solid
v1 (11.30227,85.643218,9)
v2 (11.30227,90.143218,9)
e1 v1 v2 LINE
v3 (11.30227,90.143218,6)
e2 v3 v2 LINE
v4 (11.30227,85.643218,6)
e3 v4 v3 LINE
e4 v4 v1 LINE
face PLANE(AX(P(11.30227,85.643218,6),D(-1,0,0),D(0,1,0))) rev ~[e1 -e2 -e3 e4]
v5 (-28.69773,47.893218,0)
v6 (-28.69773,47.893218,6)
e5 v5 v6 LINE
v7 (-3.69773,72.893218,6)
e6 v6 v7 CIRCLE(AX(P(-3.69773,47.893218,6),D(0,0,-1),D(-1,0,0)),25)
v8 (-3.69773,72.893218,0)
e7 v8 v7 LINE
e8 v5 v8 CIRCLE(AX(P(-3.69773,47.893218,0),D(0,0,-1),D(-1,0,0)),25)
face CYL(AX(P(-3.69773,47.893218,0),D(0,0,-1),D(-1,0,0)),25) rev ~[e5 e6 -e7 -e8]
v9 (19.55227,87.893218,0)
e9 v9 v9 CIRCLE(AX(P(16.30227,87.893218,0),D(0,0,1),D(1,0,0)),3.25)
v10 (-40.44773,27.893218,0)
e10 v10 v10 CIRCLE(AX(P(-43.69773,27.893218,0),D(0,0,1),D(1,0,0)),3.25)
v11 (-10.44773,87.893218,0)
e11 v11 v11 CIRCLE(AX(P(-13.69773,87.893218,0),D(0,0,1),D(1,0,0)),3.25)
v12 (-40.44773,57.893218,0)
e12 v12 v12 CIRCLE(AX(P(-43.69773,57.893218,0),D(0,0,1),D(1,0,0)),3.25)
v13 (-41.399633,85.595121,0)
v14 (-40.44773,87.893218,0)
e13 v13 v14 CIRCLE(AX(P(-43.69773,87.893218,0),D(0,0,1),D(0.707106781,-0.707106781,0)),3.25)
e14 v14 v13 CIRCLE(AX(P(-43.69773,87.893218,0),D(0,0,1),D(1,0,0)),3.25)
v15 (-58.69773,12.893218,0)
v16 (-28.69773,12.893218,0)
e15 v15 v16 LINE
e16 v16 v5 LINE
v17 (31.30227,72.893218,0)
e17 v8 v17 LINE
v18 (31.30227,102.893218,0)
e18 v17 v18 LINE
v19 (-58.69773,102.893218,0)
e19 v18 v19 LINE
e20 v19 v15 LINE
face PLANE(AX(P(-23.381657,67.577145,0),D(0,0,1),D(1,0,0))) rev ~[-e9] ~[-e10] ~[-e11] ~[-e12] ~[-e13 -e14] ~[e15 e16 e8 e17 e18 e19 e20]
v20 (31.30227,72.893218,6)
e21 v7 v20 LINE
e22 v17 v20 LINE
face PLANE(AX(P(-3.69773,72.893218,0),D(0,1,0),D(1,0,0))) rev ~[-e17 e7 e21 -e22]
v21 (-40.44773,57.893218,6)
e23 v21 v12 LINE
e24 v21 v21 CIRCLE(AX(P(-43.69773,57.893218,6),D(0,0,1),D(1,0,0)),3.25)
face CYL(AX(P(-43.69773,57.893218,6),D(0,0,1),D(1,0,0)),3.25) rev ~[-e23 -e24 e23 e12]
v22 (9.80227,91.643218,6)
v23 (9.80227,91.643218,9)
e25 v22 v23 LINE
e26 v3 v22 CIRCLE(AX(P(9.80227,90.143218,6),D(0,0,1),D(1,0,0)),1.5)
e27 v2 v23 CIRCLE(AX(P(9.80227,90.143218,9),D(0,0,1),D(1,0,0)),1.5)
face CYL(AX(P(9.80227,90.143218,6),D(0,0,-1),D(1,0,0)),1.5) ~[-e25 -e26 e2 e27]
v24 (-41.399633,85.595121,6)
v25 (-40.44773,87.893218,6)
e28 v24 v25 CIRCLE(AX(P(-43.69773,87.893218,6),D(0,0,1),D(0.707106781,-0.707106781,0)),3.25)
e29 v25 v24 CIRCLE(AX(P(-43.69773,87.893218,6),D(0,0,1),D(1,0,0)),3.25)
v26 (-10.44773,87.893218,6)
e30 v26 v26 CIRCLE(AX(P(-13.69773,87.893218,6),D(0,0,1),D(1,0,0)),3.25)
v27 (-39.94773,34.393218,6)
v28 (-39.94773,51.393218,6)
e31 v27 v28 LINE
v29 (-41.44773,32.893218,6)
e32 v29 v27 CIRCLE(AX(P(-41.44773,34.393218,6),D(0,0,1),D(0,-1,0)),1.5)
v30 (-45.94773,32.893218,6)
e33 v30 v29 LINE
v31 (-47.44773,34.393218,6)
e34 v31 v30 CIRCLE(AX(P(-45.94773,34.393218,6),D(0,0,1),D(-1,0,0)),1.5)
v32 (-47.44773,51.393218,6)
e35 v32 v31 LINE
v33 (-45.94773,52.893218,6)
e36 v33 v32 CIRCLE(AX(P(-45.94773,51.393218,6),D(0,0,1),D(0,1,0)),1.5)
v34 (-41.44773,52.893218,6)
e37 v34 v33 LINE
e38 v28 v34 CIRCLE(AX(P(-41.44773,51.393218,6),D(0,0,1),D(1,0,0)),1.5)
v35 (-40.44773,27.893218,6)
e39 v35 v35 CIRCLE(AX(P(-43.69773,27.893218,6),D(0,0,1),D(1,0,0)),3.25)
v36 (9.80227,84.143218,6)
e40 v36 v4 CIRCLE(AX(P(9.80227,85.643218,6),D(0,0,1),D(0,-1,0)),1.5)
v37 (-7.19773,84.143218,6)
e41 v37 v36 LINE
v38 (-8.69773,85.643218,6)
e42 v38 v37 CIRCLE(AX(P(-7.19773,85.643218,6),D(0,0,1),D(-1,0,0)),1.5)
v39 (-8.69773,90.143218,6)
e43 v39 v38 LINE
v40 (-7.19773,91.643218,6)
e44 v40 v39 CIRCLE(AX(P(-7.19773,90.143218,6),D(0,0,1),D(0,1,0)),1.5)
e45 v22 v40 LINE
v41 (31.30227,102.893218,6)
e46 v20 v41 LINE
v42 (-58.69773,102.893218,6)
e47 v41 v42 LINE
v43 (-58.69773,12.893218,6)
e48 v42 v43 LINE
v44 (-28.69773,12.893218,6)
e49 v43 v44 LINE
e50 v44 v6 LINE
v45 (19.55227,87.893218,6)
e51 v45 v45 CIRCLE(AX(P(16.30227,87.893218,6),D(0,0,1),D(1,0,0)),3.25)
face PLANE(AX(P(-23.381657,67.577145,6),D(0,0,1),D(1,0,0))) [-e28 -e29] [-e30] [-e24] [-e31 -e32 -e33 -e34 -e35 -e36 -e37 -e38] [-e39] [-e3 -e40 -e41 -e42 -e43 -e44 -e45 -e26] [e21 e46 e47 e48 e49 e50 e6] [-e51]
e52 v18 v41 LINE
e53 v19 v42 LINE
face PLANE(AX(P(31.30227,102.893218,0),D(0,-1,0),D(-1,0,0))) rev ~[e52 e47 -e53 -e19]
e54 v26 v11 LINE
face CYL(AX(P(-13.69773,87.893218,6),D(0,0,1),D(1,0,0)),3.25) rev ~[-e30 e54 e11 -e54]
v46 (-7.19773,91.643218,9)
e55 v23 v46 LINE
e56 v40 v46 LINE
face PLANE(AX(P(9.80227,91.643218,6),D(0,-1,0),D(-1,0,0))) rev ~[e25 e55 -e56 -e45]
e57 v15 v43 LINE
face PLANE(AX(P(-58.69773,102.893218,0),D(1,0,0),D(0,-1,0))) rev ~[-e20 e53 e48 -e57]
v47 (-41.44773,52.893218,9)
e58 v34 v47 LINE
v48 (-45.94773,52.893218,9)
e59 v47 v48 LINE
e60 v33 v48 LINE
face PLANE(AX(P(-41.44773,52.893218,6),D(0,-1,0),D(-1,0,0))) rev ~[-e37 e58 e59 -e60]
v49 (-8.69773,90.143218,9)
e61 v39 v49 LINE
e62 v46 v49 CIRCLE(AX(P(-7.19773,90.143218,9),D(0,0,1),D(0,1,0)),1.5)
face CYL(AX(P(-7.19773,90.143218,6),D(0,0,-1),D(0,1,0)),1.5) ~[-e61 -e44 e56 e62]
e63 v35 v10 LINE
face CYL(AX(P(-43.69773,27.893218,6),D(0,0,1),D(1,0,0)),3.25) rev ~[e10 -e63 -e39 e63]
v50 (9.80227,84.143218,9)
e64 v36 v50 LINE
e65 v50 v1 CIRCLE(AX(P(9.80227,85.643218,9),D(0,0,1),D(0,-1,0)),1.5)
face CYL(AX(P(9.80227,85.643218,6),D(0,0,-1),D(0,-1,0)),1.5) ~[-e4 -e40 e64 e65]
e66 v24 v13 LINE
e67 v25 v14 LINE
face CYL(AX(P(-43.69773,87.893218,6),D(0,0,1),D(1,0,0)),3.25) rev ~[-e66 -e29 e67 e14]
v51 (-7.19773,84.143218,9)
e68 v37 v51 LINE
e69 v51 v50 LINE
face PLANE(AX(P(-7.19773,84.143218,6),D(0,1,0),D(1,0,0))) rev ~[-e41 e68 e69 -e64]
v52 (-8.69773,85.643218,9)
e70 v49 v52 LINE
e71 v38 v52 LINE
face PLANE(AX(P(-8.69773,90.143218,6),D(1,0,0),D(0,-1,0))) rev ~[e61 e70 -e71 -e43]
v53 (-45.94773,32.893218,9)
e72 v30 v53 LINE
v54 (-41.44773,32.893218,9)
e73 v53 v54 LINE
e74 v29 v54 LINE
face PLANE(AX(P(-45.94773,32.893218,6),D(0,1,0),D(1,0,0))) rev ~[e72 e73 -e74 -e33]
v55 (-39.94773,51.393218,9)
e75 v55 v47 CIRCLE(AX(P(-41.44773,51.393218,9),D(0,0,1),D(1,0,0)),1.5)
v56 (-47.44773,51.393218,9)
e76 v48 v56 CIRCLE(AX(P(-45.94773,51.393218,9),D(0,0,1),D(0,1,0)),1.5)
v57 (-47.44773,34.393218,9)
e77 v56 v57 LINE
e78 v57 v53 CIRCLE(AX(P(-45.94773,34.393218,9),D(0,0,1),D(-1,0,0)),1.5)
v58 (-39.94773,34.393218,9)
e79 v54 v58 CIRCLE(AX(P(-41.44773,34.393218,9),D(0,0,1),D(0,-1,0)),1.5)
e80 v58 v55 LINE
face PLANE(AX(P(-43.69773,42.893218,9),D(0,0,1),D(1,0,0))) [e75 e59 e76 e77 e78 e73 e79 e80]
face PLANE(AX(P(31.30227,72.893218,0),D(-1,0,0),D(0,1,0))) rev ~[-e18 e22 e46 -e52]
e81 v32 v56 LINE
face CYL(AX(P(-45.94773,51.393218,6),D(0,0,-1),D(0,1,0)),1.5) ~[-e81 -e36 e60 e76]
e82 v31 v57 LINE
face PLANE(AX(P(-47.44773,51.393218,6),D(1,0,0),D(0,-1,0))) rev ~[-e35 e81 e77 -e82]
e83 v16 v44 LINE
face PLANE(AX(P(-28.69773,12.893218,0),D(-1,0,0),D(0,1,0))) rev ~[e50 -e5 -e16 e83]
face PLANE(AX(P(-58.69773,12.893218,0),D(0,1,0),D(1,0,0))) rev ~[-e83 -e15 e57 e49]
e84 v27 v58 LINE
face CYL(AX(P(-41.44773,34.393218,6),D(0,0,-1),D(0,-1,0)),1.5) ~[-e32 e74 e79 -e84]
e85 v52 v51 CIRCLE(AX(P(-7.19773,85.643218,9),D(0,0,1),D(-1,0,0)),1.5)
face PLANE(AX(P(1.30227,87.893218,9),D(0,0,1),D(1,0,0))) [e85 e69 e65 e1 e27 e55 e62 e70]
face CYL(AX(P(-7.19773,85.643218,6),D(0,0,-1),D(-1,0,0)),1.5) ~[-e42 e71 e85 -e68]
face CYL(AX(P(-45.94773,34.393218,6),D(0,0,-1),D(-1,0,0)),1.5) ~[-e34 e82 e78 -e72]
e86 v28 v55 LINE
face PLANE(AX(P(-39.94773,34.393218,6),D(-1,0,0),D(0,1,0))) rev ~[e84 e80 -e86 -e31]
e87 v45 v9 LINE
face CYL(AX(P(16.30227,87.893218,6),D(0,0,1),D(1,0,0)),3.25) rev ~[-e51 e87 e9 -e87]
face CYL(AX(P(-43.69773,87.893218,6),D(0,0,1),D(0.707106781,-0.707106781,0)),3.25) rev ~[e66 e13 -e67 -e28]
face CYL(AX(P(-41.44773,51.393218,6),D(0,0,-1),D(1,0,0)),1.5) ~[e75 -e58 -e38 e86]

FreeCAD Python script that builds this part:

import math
import FreeCAD as App
import Part
import Sketcher
from FreeCAD import Vector

doc = App.newDocument("Part")
body = doc.addObject("PartDesign::Body", "Body")

# Sketch on XY plane
sketch1 = doc.addObject("Sketcher::SketchObject", "Sketch")
body.addObject(sketch1)
sketch1.AttachmentSupport = (doc.XY_Plane, [""])
sketch1.MapMode = "FlatFace"
sketch1.addGeometry([
    Part.LineSegment(Vector(-58.69773, 102.893218, 0), Vector(-58.69773, 12.893218, 0)),  # 0
    Part.LineSegment(Vector(-58.69773, 12.893218, 0), Vector(-28.69773, 12.893218, 0)),  # 1
    Part.LineSegment(Vector(-28.69773, 12.893218, 0), Vector(-28.69773, 47.893218, 0)),  # 2
    Part.ArcOfCircle(Part.Circle(Vector(-3.69773, 47.893218, 0), Vector(0, 0, 1), 25), math.radians(90), math.radians(180)),  # 3
    Part.LineSegment(Vector(-3.69773, 72.893218, 0), Vector(31.30227, 72.893218, 0)),  # 4
    Part.LineSegment(Vector(31.30227, 72.893218, 0), Vector(31.30227, 102.893218, 0)),  # 5
    Part.LineSegment(Vector(31.30227, 102.893218, 0), Vector(-58.69773, 102.893218, 0)),  # 6
], False)
sketch1.addConstraint([
    Sketcher.Constraint("Coincident", 0, 2, 1, 1),
    Sketcher.Constraint("Coincident", 1, 2, 2, 1),
    Sketcher.Constraint("Tangent", 2, 2, 3, 2),
    Sketcher.Constraint("Tangent", 3, 1, 4, 1),
    Sketcher.Constraint("Coincident", 4, 2, 5, 1),
    Sketcher.Constraint("Coincident", 5, 2, 6, 1),
    Sketcher.Constraint("Coincident", 6, 2, 0, 1),
    Sketcher.Constraint("Vertical", 0),
    Sketcher.Constraint("Horizontal", 1),
    Sketcher.Constraint("Vertical", 2),
    Sketcher.Constraint("Horizontal", 4),
    Sketcher.Constraint("Vertical", 5),
    Sketcher.Constraint("Horizontal", 6),
    Sketcher.Constraint("Equal", 6, 0),
    Sketcher.Constraint("Equal", 4, 2),
    Sketcher.Constraint("Radius", 3, 25.0),
    Sketcher.Constraint("DistanceX", 1, 1, 1, 2, 30.0),
    Sketcher.Constraint("DistanceX", 4, 1, 4, 2, 35.0),
    Sketcher.Constraint("DistanceX", 3, 3, -1, 1, 3.69773),
    Sketcher.Constraint("DistanceY", -1, 1, 3, 3, 47.893218),
])
pad1 = doc.addObject("PartDesign::Pad", "Pad")
body.addObject(pad1)
pad1.Profile = sketch1
pad1.Length = 6

# Sketch on XY plane
sketch2 = doc.addObject("Sketcher::SketchObject", "Sketch001")
body.addObject(sketch2)
sketch2.AttachmentSupport = (doc.XY_Plane, [""])
sketch2.MapMode = "FlatFace"
sketch2.AttachmentOffset = App.Placement(Vector(0, 0, 6), App.Rotation())
sketch2.addGeometry([
    Part.Circle(Vector(-13.69773, 87.893218, 0), Vector(0, 0, 1), 3.25),  # 0
    Part.Circle(Vector(16.30227, 87.893218, 0), Vector(0, 0, 1), 3.25),  # 1
    Part.Circle(Vector(-43.69773, 57.893218, 0), Vector(0, 0, 1), 3.25),  # 2
    Part.Circle(Vector(-43.69773, 27.893218, 0), Vector(0, 0, 1), 3.25),  # 3
    Part.ArcOfCircle(Part.Circle(Vector(-43.69773, 87.893218, 0), Vector(0, 0, 1), 3.25), math.radians(-45), math.radians(0)),  # 4
    Part.ArcOfCircle(Part.Circle(Vector(-43.69773, 87.893218, 0), Vector(0, 0, 1), 3.25), math.radians(0), math.radians(315)),  # 5
], False)
sketch2.addConstraint([
    Sketcher.Constraint("Tangent", 4, 1, 5, 2),
    Sketcher.Constraint("Coincident", 5, 1, 4, 2),
    Sketcher.Constraint("Equal", 0, 1),
    Sketcher.Constraint("Equal", 1, 2),
    Sketcher.Constraint("Equal", 2, 3),
    Sketcher.Constraint("Equal", 3, 4),
    Sketcher.Constraint("Horizontal", 0, 3, 1, 3),
    Sketcher.Constraint("Horizontal", 1, 3, 4, 3),
    Sketcher.Constraint("Horizontal", 4, 3, 5, 1),
    Sketcher.Constraint("Vertical", 2, 3, 3, 3),
    Sketcher.Constraint("Vertical", 3, 3, 4, 3),
    Sketcher.Constraint("Diameter", 0, 6.5),
    Sketcher.Constraint("DistanceX", 0, 3, 1, 3, 30.0),
    Sketcher.Constraint("DistanceX", 2, 3, 0, 3, 30.0),
    Sketcher.Constraint("DistanceY", 2, 3, 0, 3, 30.0),
    Sketcher.Constraint("DistanceY", 3, 3, 2, 3, 30.0),
    Sketcher.Constraint("DistanceX", 0, 3, -1, 1, 13.69773),
    Sketcher.Constraint("DistanceY", -1, 1, 0, 3, 87.893218),
    Sketcher.Constraint("DistanceY", -1, 1, 4, 1, 85.595121),
])
pocket1 = doc.addObject("PartDesign::Pocket", "Pocket")
body.addObject(pocket1)
pocket1.Profile = sketch2
pocket1.Length = 8

# Sketch on XY plane
sketch3 = doc.addObject("Sketcher::SketchObject", "Sketch002")
body.addObject(sketch3)
sketch3.AttachmentSupport = (doc.XY_Plane, [""])
sketch3.MapMode = "FlatFace"
sketch3.AttachmentOffset = App.Placement(Vector(0, 0, 6), App.Rotation())
sketch3.addGeometry([
    Part.LineSegment(Vector(9.80227, 91.643218, 0), Vector(-7.19773, 91.643218, 0)),  # 0
    Part.ArcOfCircle(Part.Circle(Vector(-7.19773, 90.143218, 0), Vector(0, 0, 1), 1.5), math.radians(90), math.radians(180)),  # 1
    Part.LineSegment(Vector(-8.69773, 90.143218, 0), Vector(-8.69773, 85.643218, 0)),  # 2
    Part.ArcOfCircle(Part.Circle(Vector(-7.19773, 85.643218, 0), Vector(0, 0, 1), 1.5), math.radians(180), math.radians(270)),  # 3
    Part.LineSegment(Vector(-7.19773, 84.143218, 0), Vector(9.80227, 84.143218, 0)),  # 4
    Part.ArcOfCircle(Part.Circle(Vector(9.80227, 85.643218, 0), Vector(0, 0, 1), 1.5), math.radians(-90), math.radians(0)),  # 5
    Part.LineSegment(Vector(11.30227, 85.643218, 0), Vector(11.30227, 90.143218, 0)),  # 6
    Part.ArcOfCircle(Part.Circle(Vector(9.80227, 90.143218, 0), Vector(0, 0, 1), 1.5), math.radians(0), math.radians(90)),  # 7
    Part.LineSegment(Vector(-41.44773, 52.893218, 0), Vector(-45.94773, 52.893218, 0)),  # 8
    Part.ArcOfCircle(Part.Circle(Vector(-45.94773, 51.393218, 0), Vector(0, 0, 1), 1.5), math.radians(90), math.radians(180)),  # 9
    Part.LineSegment(Vector(-47.44773, 51.393218, 0), Vector(-47.44773, 34.393218, 0)),  # 10
    Part.ArcOfCircle(Part.Circle(Vector(-45.94773, 34.393218, 0), Vector(0, 0, 1), 1.5), math.radians(180), math.radians(270)),  # 11
    Part.LineSegment(Vector(-45.94773, 32.893218, 0), Vector(-41.44773, 32.893218, 0)),  # 12
    Part.ArcOfCircle(Part.Circle(Vector(-41.44773, 34.393218, 0), Vector(0, 0, 1), 1.5), math.radians(-90), math.radians(0)),  # 13
    Part.LineSegment(Vector(-39.94773, 34.393218, 0), Vector(-39.94773, 51.393218, 0)),  # 14
    Part.ArcOfCircle(Part.Circle(Vector(-41.44773, 51.393218, 0), Vector(0, 0, 1), 1.5), math.radians(0), math.radians(90)),  # 15
], False)
sketch3.addConstraint([
    Sketcher.Constraint("Tangent", 0, 2, 1, 1),
    Sketcher.Constraint("Tangent", 1, 2, 2, 1),
    Sketcher.Constraint("Tangent", 2, 2, 3, 1),
    Sketcher.Constraint("Tangent", 3, 2, 4, 1),
    Sketcher.Constraint("Tangent", 4, 2, 5, 1),
    Sketcher.Constraint("Tangent", 5, 2, 6, 1),
    Sketcher.Constraint("Tangent", 6, 2, 7, 1),
    Sketcher.Constraint("Tangent", 7, 2, 0, 1),
    Sketcher.Constraint("Tangent", 8, 2, 9, 1),
    Sketcher.Constraint("Tangent", 9, 2, 10, 1),
    Sketcher.Constraint("Tangent", 10, 2, 11, 1),
    Sketcher.Constraint("Tangent", 11, 2, 12, 1),
    Sketcher.Constraint("Tangent", 12, 2, 13, 1),
    Sketcher.Constraint("Tangent", 13, 2, 14, 1),
    Sketcher.Constraint("Tangent", 14, 2, 15, 1),
    Sketcher.Constraint("Tangent", 15, 2, 8, 1),
    Sketcher.Constraint("Horizontal", 0),
    Sketcher.Constraint("Vertical", 2),
    Sketcher.Constraint("Horizontal", 4),
    Sketcher.Constraint("Vertical", 6),
    Sketcher.Constraint("Horizontal", 8),
    Sketcher.Constraint("Vertical", 10),
    Sketcher.Constraint("Horizontal", 12),
    Sketcher.Constraint("Vertical", 14),
    Sketcher.Constraint("Equal", 1, 3),
    Sketcher.Constraint("Equal", 3, 5),
    Sketcher.Constraint("Equal", 5, 7),
    Sketcher.Constraint("Equal", 7, 9),
    Sketcher.Constraint("Equal", 9, 11),
    Sketcher.Constraint("Equal", 11, 13),
    Sketcher.Constraint("Equal", 13, 15),
    Sketcher.Constraint("Equal", 12, 2),
    Sketcher.Constraint("Equal", 4, 10),
    Sketcher.Constraint("Radius", 1, 1.5),
    Sketcher.Constraint("DistanceX", 0, 2, 0, 1, 17.0),
    Sketcher.Constraint("DistanceX", 8, 2, 8, 1, 4.5),
    Sketcher.Constraint("DistanceX", 9, 3, 3, 3, 38.75),
    Sketcher.Constraint("DistanceY", 9, 3, 3, 3, 34.25),
    Sketcher.Constraint("DistanceX", 1, 3, -1, 1, 7.19773),
    Sketcher.Constraint("DistanceY", -1, 1, 1, 3, 90.143218),
])
pad2 = doc.addObject("PartDesign::Pad", "Pad001")
body.addObject(pad2)
pad2.Profile = sketch3
pad2.Length = 3

doc.recompute()
